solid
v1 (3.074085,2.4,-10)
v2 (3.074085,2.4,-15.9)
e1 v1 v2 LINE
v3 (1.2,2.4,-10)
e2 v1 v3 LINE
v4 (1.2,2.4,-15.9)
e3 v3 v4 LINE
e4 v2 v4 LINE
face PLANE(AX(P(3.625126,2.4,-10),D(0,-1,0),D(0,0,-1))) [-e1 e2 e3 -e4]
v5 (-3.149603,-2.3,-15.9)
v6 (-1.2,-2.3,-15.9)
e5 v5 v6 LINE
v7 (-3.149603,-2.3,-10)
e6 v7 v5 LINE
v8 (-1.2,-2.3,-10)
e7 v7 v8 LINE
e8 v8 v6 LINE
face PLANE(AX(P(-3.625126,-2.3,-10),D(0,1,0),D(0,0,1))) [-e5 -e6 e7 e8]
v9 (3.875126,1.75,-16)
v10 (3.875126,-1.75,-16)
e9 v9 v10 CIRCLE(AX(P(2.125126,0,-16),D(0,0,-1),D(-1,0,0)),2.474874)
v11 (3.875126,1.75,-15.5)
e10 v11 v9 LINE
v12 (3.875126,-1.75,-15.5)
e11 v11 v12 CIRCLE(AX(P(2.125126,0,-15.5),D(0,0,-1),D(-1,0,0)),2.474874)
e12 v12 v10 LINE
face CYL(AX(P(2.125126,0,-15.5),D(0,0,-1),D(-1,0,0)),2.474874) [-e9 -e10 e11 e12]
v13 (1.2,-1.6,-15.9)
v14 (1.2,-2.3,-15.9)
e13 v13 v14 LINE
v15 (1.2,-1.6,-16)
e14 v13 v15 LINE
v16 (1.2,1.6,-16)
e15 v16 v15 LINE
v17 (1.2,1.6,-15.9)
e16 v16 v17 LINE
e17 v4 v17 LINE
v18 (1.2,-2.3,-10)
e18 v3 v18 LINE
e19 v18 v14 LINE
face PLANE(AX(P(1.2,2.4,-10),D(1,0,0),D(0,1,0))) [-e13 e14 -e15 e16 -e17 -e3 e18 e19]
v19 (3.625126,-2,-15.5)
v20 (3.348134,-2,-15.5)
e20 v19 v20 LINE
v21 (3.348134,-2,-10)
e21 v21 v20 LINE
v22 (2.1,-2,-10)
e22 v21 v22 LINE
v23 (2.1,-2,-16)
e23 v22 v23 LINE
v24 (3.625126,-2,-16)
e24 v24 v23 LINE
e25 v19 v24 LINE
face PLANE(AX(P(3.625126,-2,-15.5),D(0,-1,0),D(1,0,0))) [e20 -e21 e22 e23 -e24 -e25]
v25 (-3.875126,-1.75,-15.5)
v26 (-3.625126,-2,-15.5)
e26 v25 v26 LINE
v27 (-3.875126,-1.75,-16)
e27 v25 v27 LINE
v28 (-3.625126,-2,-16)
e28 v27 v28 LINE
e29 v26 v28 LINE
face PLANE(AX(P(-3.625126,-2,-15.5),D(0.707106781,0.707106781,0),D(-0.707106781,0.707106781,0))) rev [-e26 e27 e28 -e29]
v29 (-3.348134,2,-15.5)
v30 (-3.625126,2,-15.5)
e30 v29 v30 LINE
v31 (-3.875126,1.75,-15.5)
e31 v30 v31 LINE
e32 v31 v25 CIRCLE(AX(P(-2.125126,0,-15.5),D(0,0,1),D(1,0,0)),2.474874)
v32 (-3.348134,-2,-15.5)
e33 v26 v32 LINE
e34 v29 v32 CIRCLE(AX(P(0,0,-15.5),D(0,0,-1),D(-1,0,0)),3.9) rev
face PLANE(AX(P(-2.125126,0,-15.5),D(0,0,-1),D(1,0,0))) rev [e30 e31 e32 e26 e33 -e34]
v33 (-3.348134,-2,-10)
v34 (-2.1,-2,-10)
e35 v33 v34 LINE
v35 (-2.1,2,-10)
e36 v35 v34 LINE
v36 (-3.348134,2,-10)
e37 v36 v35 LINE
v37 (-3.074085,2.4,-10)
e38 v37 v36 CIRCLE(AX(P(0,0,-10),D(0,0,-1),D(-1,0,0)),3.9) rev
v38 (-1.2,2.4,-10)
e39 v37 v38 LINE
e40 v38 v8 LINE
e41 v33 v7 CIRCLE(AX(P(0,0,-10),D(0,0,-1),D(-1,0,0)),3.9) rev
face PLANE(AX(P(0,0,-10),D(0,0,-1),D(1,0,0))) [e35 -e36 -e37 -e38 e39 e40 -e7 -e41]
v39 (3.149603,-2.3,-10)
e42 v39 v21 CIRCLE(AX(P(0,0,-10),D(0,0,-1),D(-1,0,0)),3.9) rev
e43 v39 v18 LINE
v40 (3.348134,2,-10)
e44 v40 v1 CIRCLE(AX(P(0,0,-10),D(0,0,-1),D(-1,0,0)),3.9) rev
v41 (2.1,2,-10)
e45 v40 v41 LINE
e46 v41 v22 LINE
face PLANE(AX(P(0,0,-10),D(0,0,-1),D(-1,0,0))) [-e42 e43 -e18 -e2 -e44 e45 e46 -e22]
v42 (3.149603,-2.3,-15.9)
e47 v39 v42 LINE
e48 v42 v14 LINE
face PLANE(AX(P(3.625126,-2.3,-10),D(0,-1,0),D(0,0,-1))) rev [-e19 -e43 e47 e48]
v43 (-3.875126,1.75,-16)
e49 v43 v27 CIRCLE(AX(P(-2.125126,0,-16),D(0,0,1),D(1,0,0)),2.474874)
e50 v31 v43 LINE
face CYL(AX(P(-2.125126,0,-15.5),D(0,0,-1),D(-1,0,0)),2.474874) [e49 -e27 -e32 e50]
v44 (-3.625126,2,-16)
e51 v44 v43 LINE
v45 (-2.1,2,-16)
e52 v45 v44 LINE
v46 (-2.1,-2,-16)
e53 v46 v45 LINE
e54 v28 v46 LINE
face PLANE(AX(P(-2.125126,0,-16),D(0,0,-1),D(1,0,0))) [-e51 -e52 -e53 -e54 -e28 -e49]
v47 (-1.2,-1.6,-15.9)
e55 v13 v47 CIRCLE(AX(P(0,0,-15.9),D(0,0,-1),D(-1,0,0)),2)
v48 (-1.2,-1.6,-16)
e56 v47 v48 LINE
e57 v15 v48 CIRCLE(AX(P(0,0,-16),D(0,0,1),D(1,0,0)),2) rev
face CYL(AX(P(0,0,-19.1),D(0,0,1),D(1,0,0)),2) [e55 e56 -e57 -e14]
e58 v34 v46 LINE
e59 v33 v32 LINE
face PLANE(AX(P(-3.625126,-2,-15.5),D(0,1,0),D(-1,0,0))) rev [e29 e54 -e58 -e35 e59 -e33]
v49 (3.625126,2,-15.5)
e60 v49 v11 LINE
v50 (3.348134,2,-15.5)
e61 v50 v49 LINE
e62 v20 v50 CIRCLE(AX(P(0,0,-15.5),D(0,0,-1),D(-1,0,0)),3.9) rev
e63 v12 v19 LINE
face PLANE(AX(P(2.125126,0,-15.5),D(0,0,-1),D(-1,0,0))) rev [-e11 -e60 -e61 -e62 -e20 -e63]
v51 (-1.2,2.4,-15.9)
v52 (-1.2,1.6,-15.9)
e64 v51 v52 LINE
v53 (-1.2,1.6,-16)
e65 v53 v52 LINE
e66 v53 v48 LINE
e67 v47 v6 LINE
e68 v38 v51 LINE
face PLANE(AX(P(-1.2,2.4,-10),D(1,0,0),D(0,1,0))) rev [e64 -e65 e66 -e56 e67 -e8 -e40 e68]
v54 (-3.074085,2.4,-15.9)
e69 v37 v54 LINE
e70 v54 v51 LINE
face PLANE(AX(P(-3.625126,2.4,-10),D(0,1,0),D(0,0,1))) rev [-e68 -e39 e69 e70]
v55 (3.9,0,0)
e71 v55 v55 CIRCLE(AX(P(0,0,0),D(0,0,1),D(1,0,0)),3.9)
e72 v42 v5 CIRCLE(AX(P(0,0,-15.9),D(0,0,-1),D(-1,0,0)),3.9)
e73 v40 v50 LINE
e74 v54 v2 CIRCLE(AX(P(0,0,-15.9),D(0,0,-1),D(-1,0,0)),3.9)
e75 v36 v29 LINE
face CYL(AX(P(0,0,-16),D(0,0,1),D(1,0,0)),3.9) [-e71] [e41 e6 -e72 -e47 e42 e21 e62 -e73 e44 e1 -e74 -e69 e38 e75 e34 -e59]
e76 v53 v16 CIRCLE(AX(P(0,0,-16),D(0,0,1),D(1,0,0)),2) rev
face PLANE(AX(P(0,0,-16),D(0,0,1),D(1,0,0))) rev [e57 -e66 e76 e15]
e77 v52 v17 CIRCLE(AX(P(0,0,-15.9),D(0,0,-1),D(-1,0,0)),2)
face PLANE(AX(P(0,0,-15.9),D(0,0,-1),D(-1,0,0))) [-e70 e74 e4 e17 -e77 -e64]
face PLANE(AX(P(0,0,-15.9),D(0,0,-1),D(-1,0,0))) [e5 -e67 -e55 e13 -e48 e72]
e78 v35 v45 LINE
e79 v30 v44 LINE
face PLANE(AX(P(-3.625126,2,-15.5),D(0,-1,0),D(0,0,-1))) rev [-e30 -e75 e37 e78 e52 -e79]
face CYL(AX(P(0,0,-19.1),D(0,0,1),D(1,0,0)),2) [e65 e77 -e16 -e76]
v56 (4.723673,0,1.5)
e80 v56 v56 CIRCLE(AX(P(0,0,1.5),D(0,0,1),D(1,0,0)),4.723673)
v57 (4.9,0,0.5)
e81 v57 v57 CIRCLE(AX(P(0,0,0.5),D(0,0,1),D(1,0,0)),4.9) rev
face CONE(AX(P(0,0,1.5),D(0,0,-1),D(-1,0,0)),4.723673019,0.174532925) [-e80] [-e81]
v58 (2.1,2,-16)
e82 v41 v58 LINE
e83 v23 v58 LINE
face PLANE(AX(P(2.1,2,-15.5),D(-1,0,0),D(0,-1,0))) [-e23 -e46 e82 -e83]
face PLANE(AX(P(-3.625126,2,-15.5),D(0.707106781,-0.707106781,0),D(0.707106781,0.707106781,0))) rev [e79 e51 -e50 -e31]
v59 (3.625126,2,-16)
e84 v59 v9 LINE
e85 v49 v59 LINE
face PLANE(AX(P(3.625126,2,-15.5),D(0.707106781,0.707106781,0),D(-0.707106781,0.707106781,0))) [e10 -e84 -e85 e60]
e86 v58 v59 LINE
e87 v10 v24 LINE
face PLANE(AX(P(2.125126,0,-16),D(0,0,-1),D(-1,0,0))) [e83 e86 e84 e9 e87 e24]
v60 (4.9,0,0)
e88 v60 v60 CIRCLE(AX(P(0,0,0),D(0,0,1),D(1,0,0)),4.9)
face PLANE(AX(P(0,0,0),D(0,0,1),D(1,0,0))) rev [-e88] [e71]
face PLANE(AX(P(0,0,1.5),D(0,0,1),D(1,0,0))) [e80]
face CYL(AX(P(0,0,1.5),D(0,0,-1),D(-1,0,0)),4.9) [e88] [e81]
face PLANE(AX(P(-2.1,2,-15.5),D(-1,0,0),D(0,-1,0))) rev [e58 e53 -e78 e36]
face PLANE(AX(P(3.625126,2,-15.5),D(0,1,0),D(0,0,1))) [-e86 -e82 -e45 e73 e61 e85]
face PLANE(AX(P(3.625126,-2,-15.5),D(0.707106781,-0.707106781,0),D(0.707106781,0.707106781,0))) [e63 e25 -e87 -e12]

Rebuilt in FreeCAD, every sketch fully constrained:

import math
import FreeCAD as App
import Part
import Sketcher


def edges_at(feature, points):
    """Names of the edges that pass closest to the given points."""
    edges = feature.Shape.Edges
    near = lambda p: min(range(len(edges)), key=lambda i: edges[i].distToShape(Part.Vertex(*p))[0])
    return sorted({f"Edge{near(p) + 1}" for p in points})

doc = App.newDocument("Part")
params = doc.addObject("Spreadsheet::Sheet", "Params")
for row, (alias, value) in enumerate([
    ("sketch1_diameter", "7.8 mm"),
    ("pad1_length", "16 mm"),
    ("sketch2_diameter", "9.8 mm"),
    ("pad2_length", "1.5 mm"),
    ("sketch3_diameter", "4 mm"),
    ("sketch3_diameter2", "7.8 mm"),
    ("pocket1_length", "3.2 mm"),
    ("chamfer_size", "1 mm"),
    ("chamfer_size2", "0.176327 mm"),
    ("sketch4_height", "4 mm"),
    ("pad3_length", "0.5 mm"),
    ("sketch5_height", "4 mm"),
    ("sketch5_height2", "0.3 mm"),
    ("sketch5_height3", "4.7 mm"),
    ("pocket2_length", "6 mm"),
], start=1):
    params.set(f"A{row}", alias)
    params.set(f"B{row}", "=" + value)
    params.setAlias(f"B{row}", alias)

body = doc.addObject("PartDesign::Body", "Body")

sketch1 = body.newObject("Sketcher::SketchObject", "Sketch")
sketch1.AttachmentSupport = (doc.getObject("XY_Plane"), [""])
sketch1.MapMode = "FlatFace"
sketch1.addGeometry(Part.Circle(App.Vector(0, 0, 0), App.Vector(0, 0, 1), 3.9), False)
sketch1.addConstraint([
    Sketcher.Constraint("Coincident", 0, 3, -1, 1),
    Sketcher.Constraint("Diameter", 0, 7.8),
])
sketch1.setExpression("Constraints[1]", "Params.sketch1_diameter")
pad1 = body.newObject("PartDesign::Pad", "Pad")
pad1.Profile = sketch1
pad1.setExpression("Length", "Params.pad1_length")
pad1.Reversed = True

sketch2 = body.newObject("Sketcher::SketchObject", "Sketch001")
sketch2.AttachmentSupport = (doc.getObject("XY_Plane"), [""])
sketch2.MapMode = "FlatFace"
sketch2.addGeometry(Part.Circle(App.Vector(0, 0, 0), App.Vector(0, 0, 1), 4.9), False)
sketch2.addConstraint([
    Sketcher.Constraint("Coincident", 0, 3, -1, 1),
    Sketcher.Constraint("Diameter", 0, 9.8),
])
sketch2.setExpression("Constraints[1]", "Params.sketch2_diameter")
pad2 = body.newObject("PartDesign::Pad", "Pad001")
pad2.Profile = sketch2
pad2.setExpression("Length", "Params.pad2_length")

sketch3 = body.newObject("Sketcher::SketchObject", "Sketch002")
sketch3.AttachmentSupport = (doc.getObject("XY_Plane"), [""])
sketch3.MapMode = "FlatFace"
sketch3.AttachmentOffset = App.Placement(App.Vector(0, 0, -15.9), App.Rotation())
sketch3.addGeometry([
    Part.Circle(App.Vector(0, 0, 0), App.Vector(0, 0, 1), 3.9),
    Part.Circle(App.Vector(0, 0, 0), App.Vector(0, 0, 1), 2),
], False)
sketch3.addConstraint([
    Sketcher.Constraint("Coincident", 0, 3, -1, 1),
    Sketcher.Constraint("Coincident", 1, 3, -1, 1),
    Sketcher.Constraint("Diameter", 1, 4.0),
    Sketcher.Constraint("Diameter", 0, 7.8),
])
sketch3.setExpression("Constraints[2]", "Params.sketch3_diameter")
sketch3.setExpression("Constraints[3]", "Params.sketch3_diameter2")
pocket1 = body.newObject("PartDesign::Pocket", "Pocket")
pocket1.Profile = sketch3
pocket1.setExpression("Length", "Params.pocket1_length")
doc.recompute()

chamfer = body.newObject("PartDesign::Chamfer", "Chamfer")
chamfer.Base = (pocket1, edges_at(pocket1, [(-4.9, 0, 1.5)]))
chamfer.ChamferType = "Two distances"
chamfer.setExpression("Size", "Params.chamfer_size")
chamfer.setExpression("Size2", "Params.chamfer_size2")

sketch4 = body.newObject("Sketcher::SketchObject", "Sketch003")
sketch4.AttachmentSupport = (doc.getObject("XY_Plane"), [""])
sketch4.MapMode = "FlatFace"
sketch4.AttachmentOffset = App.Placement(App.Vector(0, 0, -16), App.Rotation())
sketch4.addGeometry([
    Part.LineSegment(App.Vector(2.1, 2, 0), App.Vector(3.625126, 2, 0)),
    Part.LineSegment(App.Vector(3.625126, 2, 0), App.Vector(3.875126, 1.75, 0)),
    Part.ArcOfCircle(Part.Circle(App.Vector(2.125126, 0, 0), App.Vector(0, 0, 1), 2.474874), math.radians(-45), math.radians(45)),
    Part.LineSegment(App.Vector(3.875126, -1.75, 0), App.Vector(3.625126, -2, 0)),
    Part.LineSegment(App.Vector(3.625126, -2, 0), App.Vector(2.1, -2, 0)),
    Part.LineSegment(App.Vector(2.1, -2, 0), App.Vector(2.1, 2, 0)),
], False)
sketch4.addConstraint([
    Sketcher.Constraint("Coincident", 0, 2, 1, 1),
    Sketcher.Constraint("Tangent", 1, 2, 2, 2),
    Sketcher.Constraint("Tangent", 2, 1, 3, 1),
    Sketcher.Constraint("Coincident", 3, 2, 4, 1),
    Sketcher.Constraint("Coincident", 4, 2, 5, 1),
    Sketcher.Constraint("Coincident", 5, 2, 0, 1),
    Sketcher.Constraint("Horizontal", 0),
    Sketcher.Constraint("Horizontal", 4),
    Sketcher.Constraint("Vertical", 5),
    Sketcher.Constraint("Symmetric", 1, 2, 2, 1, -1),
    Sketcher.Constraint("Perpendicular", 1, 3),
    Sketcher.Constraint("Vertical", 0, 2, 3, 2),
    Sketcher.Constraint("DistanceY", 5, 1, 5, 2, 4.0),
    Sketcher.Constraint("DistanceX", -1, 1, 4, 2, 2.1),
    Sketcher.Constraint("DistanceX", 2, 3, 0, 2, 1.5),
    Sketcher.Constraint("DistanceX", 0, 1, 0, 2, 1.525126),
])
sketch4.setExpression("Constraints[12]", "Params.sketch4_height")
pad3 = body.newObject("PartDesign::Pad", "Pad002")
pad3.Profile = sketch4
pad3.setExpression("Length", "Params.pad3_length")

sketch5 = body.newObject("Sketcher::SketchObject", "Sketch004")
sketch5.AttachmentSupport = (doc.getObject("XY_Plane"), [""])
sketch5.MapMode = "FlatFace"
sketch5.AttachmentOffset = App.Placement(App.Vector(0, 0, -16), App.Rotation())
sketch5.addGeometry([
    Part.LineSegment(App.Vector(2.1, -2, 0), App.Vector(3.625126, -2, 0)),
    Part.LineSegment(App.Vector(3.625126, -2, 0), App.Vector(3.625126, -2.3, 0)),
    Part.LineSegment(App.Vector(3.625126, -2.3, 0), App.Vector(1.2, -2.3, 0)),
    Part.LineSegment(App.Vector(1.2, -2.3, 0), App.Vector(1.2, 2.4, 0)),
    Part.LineSegment(App.Vector(1.2, 2.4, 0), App.Vector(3.625126, 2.4, 0)),
    Part.LineSegment(App.Vector(3.625126, 2.4, 0), App.Vector(3.625126, 2, 0)),
    Part.LineSegment(App.Vector(3.625126, 2, 0), App.Vector(2.1, 2, 0)),
    Part.LineSegment(App.Vector(2.1, 2, 0), App.Vector(2.1, -2, 0)),
], False)
sketch5.addConstraint([
    Sketcher.Constraint("Coincident", 0, 2, 1, 1),
    Sketcher.Constraint("Coincident", 1, 2, 2, 1),
    Sketcher.Constraint("Coincident", 2, 2, 3, 1),
    Sketcher.Constraint("Coincident", 3, 2, 4, 1),
    Sketcher.Constraint("Coincident", 4, 2, 5, 1),
    Sketcher.Constraint("Coincident", 5, 2, 6, 1),
    Sketcher.Constraint("Coincident", 6, 2, 7, 1),
    Sketcher.Constraint("Coincident", 7, 2, 0, 1),
    Sketcher.Constraint("Horizontal", 0),
    Sketcher.Constraint("Vertical", 1),
    Sketcher.Constraint("Horizontal", 2),
    Sketcher.Constraint("Vertical", 3),
    Sketcher.Constraint("Horizontal", 4),
    Sketcher.Constraint("Vertical", 5),
    Sketcher.Constraint("Horizontal", 6),
    Sketcher.Constraint("Vertical", 7),
    Sketcher.Constraint("Symmetric", 0, 2, 5, 2, -1),
    Sketcher.Constraint("DistanceY", 7, 2, 7, 1, 4.0),
    Sketcher.Constraint("DistanceY", 1, 2, 1, 1, 0.3),
    Sketcher.Constraint("DistanceY", 3, 1, 3, 2, 4.7),
    Sketcher.Constraint("DistanceX", -1, 1, 2, 2, 1.2),
    Sketcher.Constraint("DistanceX", -1, 1, 6, 2, 2.1),
    Sketcher.Constraint("DistanceX", 0, 1, 0, 2, 1.525126),
])
sketch5.setExpression("Constraints[17]", "Params.sketch5_height")
sketch5.setExpression("Constraints[18]", "Params.sketch5_height2")
sketch5.setExpression("Constraints[19]", "Params.sketch5_height3")
pocket2 = body.newObject("PartDesign::Pocket", "Pocket001")
pocket2.Profile = sketch5
pocket2.setExpression("Length", "Params.pocket2_length")
pocket2.Reversed = True
doc.recompute()

mirrored = body.newObject("PartDesign::Mirrored", "Mirrored")
mirrored.Originals = [pad3, pocket2]
mirrored.MirrorPlane = (doc.getObject("YZ_Plane"), [""])
body.Tip = mirrored

doc.recompute()
